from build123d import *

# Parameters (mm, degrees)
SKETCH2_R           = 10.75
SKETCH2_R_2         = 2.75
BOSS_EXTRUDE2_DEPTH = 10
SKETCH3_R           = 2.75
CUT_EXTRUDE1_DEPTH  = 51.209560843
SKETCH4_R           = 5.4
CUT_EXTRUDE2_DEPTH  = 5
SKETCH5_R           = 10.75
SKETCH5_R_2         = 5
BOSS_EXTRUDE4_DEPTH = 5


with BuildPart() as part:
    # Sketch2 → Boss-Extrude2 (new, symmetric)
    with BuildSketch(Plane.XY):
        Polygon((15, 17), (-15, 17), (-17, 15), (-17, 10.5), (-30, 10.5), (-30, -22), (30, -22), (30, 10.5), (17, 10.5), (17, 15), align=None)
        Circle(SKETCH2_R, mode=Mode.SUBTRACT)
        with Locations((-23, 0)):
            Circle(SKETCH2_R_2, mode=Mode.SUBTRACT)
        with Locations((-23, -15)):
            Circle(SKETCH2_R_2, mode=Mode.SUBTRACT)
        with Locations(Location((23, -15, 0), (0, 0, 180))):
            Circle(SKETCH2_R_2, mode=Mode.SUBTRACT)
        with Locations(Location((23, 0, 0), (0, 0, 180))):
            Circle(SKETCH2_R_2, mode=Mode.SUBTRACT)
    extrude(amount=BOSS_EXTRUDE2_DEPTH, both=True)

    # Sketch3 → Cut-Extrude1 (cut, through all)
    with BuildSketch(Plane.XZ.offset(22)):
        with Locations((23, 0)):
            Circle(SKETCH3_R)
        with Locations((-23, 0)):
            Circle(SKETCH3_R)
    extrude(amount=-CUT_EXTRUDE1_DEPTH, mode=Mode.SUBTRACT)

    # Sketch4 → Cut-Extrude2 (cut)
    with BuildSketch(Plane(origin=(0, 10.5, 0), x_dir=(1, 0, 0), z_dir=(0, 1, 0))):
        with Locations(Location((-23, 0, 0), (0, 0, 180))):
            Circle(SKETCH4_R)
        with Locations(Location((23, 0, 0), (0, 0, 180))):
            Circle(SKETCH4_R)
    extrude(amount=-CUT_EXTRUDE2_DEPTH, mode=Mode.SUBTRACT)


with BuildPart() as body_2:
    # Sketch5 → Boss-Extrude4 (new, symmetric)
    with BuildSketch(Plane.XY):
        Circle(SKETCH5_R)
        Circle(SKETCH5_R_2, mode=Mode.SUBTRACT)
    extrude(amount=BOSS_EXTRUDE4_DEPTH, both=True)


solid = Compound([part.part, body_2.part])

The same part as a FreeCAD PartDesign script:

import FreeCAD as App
import Part
import Sketcher
from FreeCAD import Vector
Q = App.Units.Quantity

doc = App.newDocument("Part")
body = doc.addObject("PartDesign::Body", "Body")

# Sketch on XY plane
sketch1 = body.newObject("Sketcher::SketchObject", "Sketch")
sketch1.AttachmentSupport = (doc.getObject("XY_Plane"), [""])
sketch1.MapMode = "FlatFace"
sketch1.addGeometry(Part.LineSegment(Vector(15, 17, 0), Vector(-15, 17, 0)), False)
sketch1.addGeometry(Part.LineSegment(Vector(-15, 17, 0), Vector(-17, 15, 0)), False)
sketch1.addGeometry(Part.LineSegment(Vector(-17, 15, 0), Vector(-17, 10.5, 0)), False)
sketch1.addGeometry(Part.LineSegment(Vector(-17, 10.5, 0), Vector(-30, 10.5, 0)), False)
sketch1.addGeometry(Part.LineSegment(Vector(-30, 10.5, 0), Vector(-30, -22, 0)), False)
sketch1.addGeometry(Part.LineSegment(Vector(-30, -22, 0), Vector(30, -22, 0)), False)
sketch1.addGeometry(Part.LineSegment(Vector(30, -22, 0), Vector(30, 10.5, 0)), False)
sketch1.addGeometry(Part.LineSegment(Vector(30, 10.5, 0), Vector(17, 10.5, 0)), False)
sketch1.addGeometry(Part.LineSegment(Vector(17, 10.5, 0), Vector(17, 15, 0)), False)
sketch1.addGeometry(Part.LineSegment(Vector(17, 15, 0), Vector(15, 17, 0)), False)
sketch1.addGeometry(Part.Circle(Vector(-23, -15, 0), Vector(0, 0, 1), 2.8), False)
sketch1.addGeometry(Part.Circle(Vector(23, -15, 0), Vector(0, 0, 1), 2.8), False)
sketch1.addGeometry(Part.Circle(Vector(-23, 0, 0), Vector(0, 0, 1), 2.8), False)
sketch1.addGeometry(Part.Circle(Vector(0, 0, 0), Vector(0, 0, 1), 10.8), False)
sketch1.addGeometry(Part.Circle(Vector(23, 0, 0), Vector(0, 0, 1), 2.8), False)
sketch1.addConstraint(Sketcher.Constraint("Coincident", 0, 2, 1, 1))
sketch1.addConstraint(Sketcher.Constraint("Coincident", 1, 2, 2, 1))
sketch1.addConstraint(Sketcher.Constraint("Coincident", 2, 2, 3, 1))
sketch1.addConstraint(Sketcher.Constraint("Coincident", 3, 2, 4, 1))
sketch1.addConstraint(Sketcher.Constraint("Coincident", 4, 2, 5, 1))
sketch1.addConstraint(Sketcher.Constraint("Coincident", 5, 2, 6, 1))
sketch1.addConstraint(Sketcher.Constraint("Coincident", 6, 2, 7, 1))
sketch1.addConstraint(Sketcher.Constraint("Coincident", 7, 2, 8, 1))
sketch1.addConstraint(Sketcher.Constraint("Coincident", 8, 2, 9, 1))
sketch1.addConstraint(Sketcher.Constraint("Coincident", 9, 2, 0, 1))
sketch1.addConstraint(Sketcher.Constraint("Horizontal", 0))
sketch1.addConstraint(Sketcher.Constraint("Vertical", 2))
sketch1.addConstraint(Sketcher.Constraint("Horizontal", 3))
sketch1.addConstraint(Sketcher.Constraint("Vertical", 4))
sketch1.addConstraint(Sketcher.Constraint("Horizontal", 5))
sketch1.addConstraint(Sketcher.Constraint("Vertical", 6))
sketch1.addConstraint(Sketcher.Constraint("Horizontal", 7))
sketch1.addConstraint(Sketcher.Constraint("Vertical", 8))
sketch1.addConstraint(Sketcher.Constraint("Coincident", 13, 3, -1, 1))
sketch1.addConstraint(Sketcher.Constraint("Equal", 10, 11))
sketch1.addConstraint(Sketcher.Constraint("Equal", 11, 12))
sketch1.addConstraint(Sketcher.Constraint("Equal", 12, 14))
sketch1.addConstraint(Sketcher.Constraint("Symmetric", 12, 3, 14, 3, -1, 1))
sketch1.addConstraint(Sketcher.Constraint("Symmetric", 10, 3, 11, 3, -2))
sketch1.addConstraint(Sketcher.Constraint("Symmetric", 3, 2, 6, 2, -2))
sketch1.addConstraint(Sketcher.Constraint("Symmetric", 1, 2, 8, 2, -2))
sketch1.addConstraint(Sketcher.Constraint("PointOnObject", 12, 3, -1))
sketch1.addConstraint(Sketcher.Constraint("Perpendicular", 1, 9))
sketch1.addConstraint(Sketcher.Constraint("Vertical", 10, 3, 12, 3))
sketch1.addConstraint(Sketcher.Constraint("Equal", 1, 9))
sketch1.addConstraint(Sketcher.Constraint("Diameter", 10, Q("5.5 mm")))
sketch1.addConstraint(Sketcher.Constraint("Diameter", 13, Q("21.5 mm")))
sketch1.addConstraint(Sketcher.Constraint("DistanceX", 0, 2, 0, 1, Q("30 mm")))
sketch1.addConstraint(Sketcher.Constraint("DistanceX", 3, 2, 3, 1, Q("13 mm")))
sketch1.addConstraint(Sketcher.Constraint("DistanceX", 5, 1, 5, 2, Q("60 mm")))
sketch1.addConstraint(Sketcher.Constraint("DistanceY", 2, 2, 2, 1, Q("4.5 mm")))
sketch1.addConstraint(Sketcher.Constraint("DistanceY", 4, 2, 4, 1, Q("32.5 mm")))
sketch1.addConstraint(Sketcher.Constraint("DistanceX", 10, 3, -1, 1, Q("23 mm")))
sketch1.addConstraint(Sketcher.Constraint("DistanceY", 10, 3, -1, 1, Q("15 mm")))
sketch1.addConstraint(Sketcher.Constraint("DistanceY", -1, 1, 0, 2, Q("17 mm")))
pad1 = body.newObject("PartDesign::Pad", "Pad")
pad1.Profile = sketch1
pad1.Length = 20
pad1.Midplane = True

# Sketch on XZ plane
sketch2 = body.newObject("Sketcher::SketchObject", "Sketch001")
sketch2.AttachmentSupport = (doc.getObject("XZ_Plane"), [""])
sketch2.MapMode = "FlatFace"
sketch2.AttachmentOffset = App.Placement(Vector(0, 0, 22), App.Rotation())
sketch2.addGeometry(Part.Circle(Vector(23, 0, 0), Vector(0, 0, 1), 2.8), False)
sketch2.addGeometry(Part.Circle(Vector(-23, 0, 0), Vector(0, 0, 1), 2.8), False)
sketch2.addConstraint(Sketcher.Constraint("Equal", 0, 1))
sketch2.addConstraint(Sketcher.Constraint("Symmetric", 0, 3, 1, 3, -1, 1))
sketch2.addConstraint(Sketcher.Constraint("PointOnObject", 0, 3, -1))
sketch2.addConstraint(Sketcher.Constraint("Diameter", 0, Q("5.5 mm")))
sketch2.addConstraint(Sketcher.Constraint("DistanceX", -1, 1, 0, 3, Q("23 mm")))
pocket1 = body.newObject("PartDesign::Pocket", "Pocket")
pocket1.Profile = sketch2
pocket1.Type = "ThroughAll"

# Sketch on XZ plane
sketch3 = body.newObject("Sketcher::SketchObject", "Sketch002")
sketch3.AttachmentSupport = (doc.getObject("XZ_Plane"), [""])
sketch3.MapMode = "FlatFace"
sketch3.AttachmentOffset = App.Placement(Vector(0, 0, -10.5), App.Rotation())
sketch3.addGeometry(Part.Circle(Vector(-23, 0, 0), Vector(0, 0, 1), 5), False)
sketch3.addGeometry(Part.Circle(Vector(23, 0, 0), Vector(0, 0, 1), 5), False)
sketch3.addConstraint(Sketcher.Constraint("Equal", 0, 1))
sketch3.addConstraint(Sketcher.Constraint("Symmetric", 0, 3, 1, 3, -1, 1))
sketch3.addConstraint(Sketcher.Constraint("PointOnObject", 0, 3, -1))
sketch3.addConstraint(Sketcher.Constraint("Diameter", 0, Q("10.8 mm")))
sketch3.addConstraint(Sketcher.Constraint("DistanceX", 0, 3, -1, 1, Q("23 mm")))
pocket2 = body.newObject("PartDesign::Pocket", "Pocket001")
pocket2.Profile = sketch3
pocket2.Length = 5
pocket2.Reversed = True
body2 = doc.addObject("PartDesign::Body", "Body001")

# Sketch on XY plane
sketch4 = body2.newObject("Sketcher::SketchObject", "Sketch003")
sketch4.AttachmentSupport = (doc.getObject("XY_Plane001"), [""])
sketch4.MapMode = "FlatFace"
sketch4.addGeometry(Part.Circle(Vector(0, 0, 0), Vector(0, 0, 1), 11), False)
sketch4.addGeometry(Part.Circle(Vector(0, 0, 0), Vector(0, 0, 1), 5), False)
sketch4.addConstraint(Sketcher.Constraint("Coincident", 0, 3, -1, 1))
sketch4.addConstraint(Sketcher.Constraint("Coincident", 1, 3, -1, 1))
sketch4.addConstraint(Sketcher.Constraint("Diameter", 1, Q("10 mm")))
sketch4.addConstraint(Sketcher.Constraint("Diameter", 0, Q("21.5 mm")))
pad2 = body2.newObject("PartDesign::Pad", "Pad001")
pad2.Profile = sketch4
pad2.Length = 10
pad2.Midplane = True

doc.recompute()
